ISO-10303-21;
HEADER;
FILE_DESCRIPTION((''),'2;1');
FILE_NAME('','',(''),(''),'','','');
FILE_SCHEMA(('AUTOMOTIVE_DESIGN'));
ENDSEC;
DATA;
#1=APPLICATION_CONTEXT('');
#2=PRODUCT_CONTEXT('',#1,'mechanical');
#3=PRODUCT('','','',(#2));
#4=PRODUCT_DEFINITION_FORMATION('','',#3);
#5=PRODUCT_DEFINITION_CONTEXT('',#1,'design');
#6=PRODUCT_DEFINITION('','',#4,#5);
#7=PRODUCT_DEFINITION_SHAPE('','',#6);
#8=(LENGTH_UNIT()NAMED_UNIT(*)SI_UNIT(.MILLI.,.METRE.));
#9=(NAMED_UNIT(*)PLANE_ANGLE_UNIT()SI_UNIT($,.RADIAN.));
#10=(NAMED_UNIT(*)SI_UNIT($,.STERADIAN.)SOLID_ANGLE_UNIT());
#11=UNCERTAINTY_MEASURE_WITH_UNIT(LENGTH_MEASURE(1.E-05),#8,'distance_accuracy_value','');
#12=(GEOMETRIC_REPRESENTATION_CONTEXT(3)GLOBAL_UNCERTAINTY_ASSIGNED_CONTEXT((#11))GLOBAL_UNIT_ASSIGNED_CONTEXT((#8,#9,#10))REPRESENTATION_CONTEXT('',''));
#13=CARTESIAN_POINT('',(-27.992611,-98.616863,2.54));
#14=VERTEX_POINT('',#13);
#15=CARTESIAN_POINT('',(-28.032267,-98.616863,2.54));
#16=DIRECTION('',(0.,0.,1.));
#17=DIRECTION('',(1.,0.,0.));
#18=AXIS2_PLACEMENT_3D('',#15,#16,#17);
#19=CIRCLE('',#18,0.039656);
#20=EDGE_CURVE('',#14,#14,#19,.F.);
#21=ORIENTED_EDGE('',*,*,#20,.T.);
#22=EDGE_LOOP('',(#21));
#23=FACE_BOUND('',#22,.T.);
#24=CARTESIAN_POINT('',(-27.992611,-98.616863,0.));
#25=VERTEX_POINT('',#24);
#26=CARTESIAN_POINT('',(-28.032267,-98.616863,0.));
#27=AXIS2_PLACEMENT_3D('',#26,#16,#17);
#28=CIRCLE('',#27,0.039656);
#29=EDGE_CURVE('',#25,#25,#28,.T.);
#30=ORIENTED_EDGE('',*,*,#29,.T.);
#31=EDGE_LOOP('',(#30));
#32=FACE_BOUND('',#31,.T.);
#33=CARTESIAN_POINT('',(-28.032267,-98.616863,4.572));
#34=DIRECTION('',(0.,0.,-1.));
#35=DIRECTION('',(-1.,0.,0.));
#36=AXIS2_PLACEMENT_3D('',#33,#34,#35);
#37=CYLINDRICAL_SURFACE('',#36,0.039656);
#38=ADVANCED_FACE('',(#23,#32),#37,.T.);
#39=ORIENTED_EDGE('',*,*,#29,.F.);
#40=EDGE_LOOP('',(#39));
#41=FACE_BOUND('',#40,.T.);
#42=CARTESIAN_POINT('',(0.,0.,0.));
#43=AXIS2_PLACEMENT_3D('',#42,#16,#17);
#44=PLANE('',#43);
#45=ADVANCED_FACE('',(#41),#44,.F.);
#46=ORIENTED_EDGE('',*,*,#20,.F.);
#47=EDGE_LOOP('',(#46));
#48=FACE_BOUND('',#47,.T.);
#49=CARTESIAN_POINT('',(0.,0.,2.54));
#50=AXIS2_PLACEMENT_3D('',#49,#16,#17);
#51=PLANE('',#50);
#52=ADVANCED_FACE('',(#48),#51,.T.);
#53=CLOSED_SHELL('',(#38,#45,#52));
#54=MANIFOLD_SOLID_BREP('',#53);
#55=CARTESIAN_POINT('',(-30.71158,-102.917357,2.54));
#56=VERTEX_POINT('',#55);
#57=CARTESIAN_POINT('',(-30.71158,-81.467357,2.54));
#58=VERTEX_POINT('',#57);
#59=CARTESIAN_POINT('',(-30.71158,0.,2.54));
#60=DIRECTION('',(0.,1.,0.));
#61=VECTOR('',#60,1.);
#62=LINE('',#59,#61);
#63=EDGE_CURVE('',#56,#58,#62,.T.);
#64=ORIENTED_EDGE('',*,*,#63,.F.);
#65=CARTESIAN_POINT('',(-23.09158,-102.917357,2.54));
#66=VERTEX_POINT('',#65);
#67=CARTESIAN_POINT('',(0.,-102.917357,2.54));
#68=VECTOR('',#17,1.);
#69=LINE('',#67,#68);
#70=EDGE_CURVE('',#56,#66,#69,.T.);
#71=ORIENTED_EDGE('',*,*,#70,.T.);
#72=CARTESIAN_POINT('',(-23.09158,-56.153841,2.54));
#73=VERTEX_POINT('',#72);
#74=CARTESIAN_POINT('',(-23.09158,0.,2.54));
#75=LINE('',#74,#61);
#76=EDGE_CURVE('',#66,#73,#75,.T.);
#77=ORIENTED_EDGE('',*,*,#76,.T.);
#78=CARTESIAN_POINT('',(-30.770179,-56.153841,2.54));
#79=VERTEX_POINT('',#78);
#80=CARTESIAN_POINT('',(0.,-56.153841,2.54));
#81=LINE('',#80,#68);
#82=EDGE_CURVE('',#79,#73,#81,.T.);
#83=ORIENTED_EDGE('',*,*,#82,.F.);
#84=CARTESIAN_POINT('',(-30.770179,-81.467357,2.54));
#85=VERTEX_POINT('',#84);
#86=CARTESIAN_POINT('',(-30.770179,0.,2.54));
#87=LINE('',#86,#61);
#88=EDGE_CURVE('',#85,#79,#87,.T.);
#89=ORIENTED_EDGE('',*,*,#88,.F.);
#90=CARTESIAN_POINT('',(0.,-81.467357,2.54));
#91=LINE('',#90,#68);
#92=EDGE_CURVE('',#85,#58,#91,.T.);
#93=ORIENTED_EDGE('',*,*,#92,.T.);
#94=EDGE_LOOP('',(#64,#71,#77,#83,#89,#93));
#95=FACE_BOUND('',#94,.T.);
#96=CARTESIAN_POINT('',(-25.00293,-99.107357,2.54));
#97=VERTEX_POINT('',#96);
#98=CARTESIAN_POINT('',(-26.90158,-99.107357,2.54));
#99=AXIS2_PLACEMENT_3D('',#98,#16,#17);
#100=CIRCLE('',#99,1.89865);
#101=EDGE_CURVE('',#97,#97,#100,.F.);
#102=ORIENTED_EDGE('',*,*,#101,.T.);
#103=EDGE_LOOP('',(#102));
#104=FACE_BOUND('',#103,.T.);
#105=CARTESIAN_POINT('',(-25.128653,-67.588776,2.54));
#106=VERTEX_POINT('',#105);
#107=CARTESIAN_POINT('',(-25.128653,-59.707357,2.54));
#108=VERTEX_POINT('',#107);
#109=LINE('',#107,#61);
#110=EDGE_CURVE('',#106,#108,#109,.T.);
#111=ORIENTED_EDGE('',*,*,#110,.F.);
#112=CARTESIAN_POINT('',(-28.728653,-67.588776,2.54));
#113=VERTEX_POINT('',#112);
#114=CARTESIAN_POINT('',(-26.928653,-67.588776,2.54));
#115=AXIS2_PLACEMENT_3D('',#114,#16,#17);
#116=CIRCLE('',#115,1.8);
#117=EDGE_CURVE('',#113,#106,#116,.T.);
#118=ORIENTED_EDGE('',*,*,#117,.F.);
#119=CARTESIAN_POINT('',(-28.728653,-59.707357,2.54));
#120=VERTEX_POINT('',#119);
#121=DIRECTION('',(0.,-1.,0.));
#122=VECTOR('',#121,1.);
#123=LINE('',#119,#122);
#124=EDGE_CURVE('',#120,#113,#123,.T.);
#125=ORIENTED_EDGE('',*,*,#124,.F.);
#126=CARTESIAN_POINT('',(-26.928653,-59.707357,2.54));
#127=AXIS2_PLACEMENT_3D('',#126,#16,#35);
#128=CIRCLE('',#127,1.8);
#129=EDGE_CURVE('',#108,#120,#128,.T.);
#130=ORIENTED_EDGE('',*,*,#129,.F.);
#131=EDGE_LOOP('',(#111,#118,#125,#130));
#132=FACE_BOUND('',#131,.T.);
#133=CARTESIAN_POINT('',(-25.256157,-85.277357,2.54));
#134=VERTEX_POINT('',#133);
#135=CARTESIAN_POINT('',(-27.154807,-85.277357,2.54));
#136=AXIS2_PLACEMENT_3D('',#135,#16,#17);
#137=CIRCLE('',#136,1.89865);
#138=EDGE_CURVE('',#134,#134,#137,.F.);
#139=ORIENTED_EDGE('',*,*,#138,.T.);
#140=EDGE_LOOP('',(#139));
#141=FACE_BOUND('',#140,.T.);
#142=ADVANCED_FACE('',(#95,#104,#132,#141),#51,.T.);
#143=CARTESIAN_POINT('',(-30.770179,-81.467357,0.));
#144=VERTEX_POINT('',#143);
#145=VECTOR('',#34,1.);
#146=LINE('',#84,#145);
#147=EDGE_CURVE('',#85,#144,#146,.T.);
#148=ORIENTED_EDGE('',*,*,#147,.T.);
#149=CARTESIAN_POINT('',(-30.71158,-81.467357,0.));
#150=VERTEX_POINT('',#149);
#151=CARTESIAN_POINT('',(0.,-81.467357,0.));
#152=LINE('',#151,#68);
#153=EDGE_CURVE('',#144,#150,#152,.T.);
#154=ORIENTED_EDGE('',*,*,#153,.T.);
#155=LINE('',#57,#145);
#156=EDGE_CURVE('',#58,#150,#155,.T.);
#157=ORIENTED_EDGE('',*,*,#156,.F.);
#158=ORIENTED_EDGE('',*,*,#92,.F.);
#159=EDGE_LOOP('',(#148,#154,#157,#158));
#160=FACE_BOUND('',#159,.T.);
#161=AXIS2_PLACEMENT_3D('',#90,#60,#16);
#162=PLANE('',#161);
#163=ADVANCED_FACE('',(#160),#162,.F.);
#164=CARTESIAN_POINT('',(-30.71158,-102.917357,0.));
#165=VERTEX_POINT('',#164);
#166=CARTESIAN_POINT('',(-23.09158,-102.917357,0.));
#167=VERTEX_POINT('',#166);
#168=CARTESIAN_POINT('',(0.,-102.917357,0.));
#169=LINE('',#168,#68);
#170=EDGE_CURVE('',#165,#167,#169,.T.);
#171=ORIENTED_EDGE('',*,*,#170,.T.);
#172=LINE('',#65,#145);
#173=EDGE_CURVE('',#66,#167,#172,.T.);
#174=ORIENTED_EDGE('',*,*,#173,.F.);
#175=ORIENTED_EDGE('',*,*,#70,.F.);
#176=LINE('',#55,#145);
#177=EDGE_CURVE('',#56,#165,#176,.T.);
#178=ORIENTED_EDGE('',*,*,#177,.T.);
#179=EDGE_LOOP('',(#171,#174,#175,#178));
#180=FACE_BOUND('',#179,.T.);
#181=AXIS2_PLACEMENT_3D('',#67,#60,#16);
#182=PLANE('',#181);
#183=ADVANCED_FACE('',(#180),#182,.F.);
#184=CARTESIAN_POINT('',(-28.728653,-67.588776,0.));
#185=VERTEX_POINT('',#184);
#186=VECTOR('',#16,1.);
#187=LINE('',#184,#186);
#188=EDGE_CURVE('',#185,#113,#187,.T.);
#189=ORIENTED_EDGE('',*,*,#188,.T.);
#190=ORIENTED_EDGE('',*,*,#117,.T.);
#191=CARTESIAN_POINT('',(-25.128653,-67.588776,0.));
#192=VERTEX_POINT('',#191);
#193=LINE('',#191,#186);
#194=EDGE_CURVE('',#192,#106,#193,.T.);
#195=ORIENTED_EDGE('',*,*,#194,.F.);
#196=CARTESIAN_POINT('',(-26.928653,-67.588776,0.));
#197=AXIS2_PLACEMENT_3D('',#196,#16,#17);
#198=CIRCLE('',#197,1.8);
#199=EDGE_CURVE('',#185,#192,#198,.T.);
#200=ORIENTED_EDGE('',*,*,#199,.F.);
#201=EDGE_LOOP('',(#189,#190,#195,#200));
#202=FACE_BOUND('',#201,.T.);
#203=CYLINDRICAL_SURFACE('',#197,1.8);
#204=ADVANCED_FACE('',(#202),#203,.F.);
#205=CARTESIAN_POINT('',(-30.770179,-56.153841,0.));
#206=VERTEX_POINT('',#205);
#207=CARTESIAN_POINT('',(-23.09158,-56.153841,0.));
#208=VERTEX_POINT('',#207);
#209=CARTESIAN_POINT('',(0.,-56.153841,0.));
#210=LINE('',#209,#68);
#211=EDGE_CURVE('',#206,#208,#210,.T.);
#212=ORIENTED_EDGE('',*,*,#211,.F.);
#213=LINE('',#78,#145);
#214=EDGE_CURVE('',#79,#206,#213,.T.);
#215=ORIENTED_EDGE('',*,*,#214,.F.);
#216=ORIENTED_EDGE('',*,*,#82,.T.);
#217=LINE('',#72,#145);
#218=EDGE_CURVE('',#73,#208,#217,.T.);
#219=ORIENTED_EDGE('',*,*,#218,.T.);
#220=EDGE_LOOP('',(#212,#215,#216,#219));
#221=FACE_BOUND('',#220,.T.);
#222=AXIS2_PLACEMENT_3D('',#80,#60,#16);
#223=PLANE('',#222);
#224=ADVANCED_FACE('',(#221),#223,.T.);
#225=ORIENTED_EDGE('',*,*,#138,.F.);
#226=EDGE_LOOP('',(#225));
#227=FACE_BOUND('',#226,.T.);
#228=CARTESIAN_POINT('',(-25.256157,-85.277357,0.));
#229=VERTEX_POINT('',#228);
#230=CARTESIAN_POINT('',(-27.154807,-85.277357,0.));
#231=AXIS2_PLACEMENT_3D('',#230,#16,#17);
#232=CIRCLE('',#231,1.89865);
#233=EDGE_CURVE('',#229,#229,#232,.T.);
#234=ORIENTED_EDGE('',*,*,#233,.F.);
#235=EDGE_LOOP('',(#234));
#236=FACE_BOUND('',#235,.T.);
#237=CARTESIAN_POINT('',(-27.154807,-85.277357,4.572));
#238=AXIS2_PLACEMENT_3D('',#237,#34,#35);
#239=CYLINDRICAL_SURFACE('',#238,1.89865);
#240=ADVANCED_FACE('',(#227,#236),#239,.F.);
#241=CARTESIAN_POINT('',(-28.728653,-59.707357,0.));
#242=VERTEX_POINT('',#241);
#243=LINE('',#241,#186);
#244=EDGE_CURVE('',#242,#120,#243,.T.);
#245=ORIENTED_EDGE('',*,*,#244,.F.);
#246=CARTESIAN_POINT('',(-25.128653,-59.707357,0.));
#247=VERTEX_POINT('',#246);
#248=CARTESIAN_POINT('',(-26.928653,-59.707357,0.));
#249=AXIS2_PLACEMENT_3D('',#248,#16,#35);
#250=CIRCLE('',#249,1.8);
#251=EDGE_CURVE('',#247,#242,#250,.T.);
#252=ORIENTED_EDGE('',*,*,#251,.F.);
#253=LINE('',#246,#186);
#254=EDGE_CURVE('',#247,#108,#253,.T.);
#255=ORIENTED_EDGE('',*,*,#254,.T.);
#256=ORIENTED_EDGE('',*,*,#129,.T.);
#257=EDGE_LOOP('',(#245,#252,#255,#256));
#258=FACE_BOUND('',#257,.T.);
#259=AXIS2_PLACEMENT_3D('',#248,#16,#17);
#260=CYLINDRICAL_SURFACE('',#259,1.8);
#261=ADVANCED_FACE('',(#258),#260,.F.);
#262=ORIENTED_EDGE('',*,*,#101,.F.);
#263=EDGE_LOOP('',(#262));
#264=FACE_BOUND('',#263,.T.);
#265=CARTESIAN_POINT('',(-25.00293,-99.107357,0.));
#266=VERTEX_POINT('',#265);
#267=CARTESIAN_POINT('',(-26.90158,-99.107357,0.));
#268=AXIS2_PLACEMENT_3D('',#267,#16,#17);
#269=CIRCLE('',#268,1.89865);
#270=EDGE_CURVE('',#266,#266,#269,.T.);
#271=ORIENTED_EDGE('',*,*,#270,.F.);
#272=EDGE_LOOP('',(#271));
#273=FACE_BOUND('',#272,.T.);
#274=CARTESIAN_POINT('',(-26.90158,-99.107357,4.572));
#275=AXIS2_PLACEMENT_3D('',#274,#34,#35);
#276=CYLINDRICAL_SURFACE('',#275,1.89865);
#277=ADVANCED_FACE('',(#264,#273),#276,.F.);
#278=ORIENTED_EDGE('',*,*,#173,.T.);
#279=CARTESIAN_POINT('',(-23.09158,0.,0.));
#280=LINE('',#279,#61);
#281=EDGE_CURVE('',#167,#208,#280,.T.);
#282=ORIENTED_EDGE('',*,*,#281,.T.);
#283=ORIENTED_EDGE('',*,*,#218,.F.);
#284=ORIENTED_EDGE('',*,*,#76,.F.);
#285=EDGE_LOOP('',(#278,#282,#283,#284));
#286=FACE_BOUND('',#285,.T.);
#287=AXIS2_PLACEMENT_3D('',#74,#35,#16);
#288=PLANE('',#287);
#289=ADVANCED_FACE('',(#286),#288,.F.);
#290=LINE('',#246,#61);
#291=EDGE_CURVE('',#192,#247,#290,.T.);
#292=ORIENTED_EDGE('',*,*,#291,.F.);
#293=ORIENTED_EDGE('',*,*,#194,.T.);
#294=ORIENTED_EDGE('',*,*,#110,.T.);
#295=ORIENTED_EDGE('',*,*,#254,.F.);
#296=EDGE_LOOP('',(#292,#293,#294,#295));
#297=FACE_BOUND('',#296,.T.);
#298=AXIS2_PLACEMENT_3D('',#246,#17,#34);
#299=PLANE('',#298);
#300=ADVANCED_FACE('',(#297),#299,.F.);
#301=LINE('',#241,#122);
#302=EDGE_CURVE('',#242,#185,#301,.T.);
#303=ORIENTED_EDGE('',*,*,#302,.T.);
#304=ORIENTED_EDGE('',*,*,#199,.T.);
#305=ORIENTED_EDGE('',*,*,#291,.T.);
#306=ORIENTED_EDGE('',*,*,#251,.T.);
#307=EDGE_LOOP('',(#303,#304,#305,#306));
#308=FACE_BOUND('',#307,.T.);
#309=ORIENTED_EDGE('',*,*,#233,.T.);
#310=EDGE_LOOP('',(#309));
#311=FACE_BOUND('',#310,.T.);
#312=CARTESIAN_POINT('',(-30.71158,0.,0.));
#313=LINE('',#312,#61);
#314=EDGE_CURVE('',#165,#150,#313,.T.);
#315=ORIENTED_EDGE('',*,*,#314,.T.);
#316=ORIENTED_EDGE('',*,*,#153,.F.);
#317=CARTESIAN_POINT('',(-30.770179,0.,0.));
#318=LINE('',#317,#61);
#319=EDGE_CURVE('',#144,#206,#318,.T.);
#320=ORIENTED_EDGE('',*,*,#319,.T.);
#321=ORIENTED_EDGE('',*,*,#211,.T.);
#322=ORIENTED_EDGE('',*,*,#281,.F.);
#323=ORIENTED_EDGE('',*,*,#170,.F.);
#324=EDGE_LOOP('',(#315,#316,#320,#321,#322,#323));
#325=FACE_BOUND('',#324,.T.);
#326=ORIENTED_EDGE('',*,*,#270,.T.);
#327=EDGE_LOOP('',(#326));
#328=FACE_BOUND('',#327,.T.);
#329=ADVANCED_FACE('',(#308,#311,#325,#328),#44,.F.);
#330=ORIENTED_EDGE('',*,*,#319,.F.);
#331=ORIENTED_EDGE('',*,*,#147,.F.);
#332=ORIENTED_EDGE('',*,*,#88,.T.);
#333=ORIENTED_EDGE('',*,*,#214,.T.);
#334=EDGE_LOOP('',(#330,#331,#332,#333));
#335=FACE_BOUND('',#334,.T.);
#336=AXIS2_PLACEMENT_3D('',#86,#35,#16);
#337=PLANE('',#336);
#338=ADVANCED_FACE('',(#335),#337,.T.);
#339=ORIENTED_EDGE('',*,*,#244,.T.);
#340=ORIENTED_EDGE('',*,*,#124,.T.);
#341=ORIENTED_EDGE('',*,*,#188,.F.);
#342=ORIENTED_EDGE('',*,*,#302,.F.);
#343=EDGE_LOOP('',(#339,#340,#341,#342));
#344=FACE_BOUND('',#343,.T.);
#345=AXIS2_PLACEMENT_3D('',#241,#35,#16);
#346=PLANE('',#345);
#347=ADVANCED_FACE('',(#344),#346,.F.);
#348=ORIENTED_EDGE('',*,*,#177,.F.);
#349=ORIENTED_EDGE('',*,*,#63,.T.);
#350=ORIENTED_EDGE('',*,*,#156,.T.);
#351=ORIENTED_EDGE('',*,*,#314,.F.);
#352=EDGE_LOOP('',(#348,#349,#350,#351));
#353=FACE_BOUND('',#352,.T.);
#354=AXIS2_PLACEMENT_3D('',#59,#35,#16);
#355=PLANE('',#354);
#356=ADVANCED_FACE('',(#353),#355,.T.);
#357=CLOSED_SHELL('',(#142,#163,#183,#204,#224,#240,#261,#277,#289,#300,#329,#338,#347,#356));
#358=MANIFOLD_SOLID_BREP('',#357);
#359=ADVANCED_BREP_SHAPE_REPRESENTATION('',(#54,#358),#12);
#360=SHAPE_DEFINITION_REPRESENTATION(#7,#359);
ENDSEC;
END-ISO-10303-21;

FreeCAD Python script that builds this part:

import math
import FreeCAD as App
import Part
import Sketcher
Q = App.Units.Quantity

doc = App.newDocument("Part")
params = doc.addObject("Spreadsheet::Sheet", "Params")
for row, (alias, value) in enumerate([
    ("sketch1_width", "0.3 in"),
    ("pad1_length", "0.1 in"),
    ("pocket1_length", "0.18 in"),
    ("pocket2_length", "0.1 in"),
], start=1):
    params.set(f"A{row}", alias)
    params.set(f"B{row}", "=" + value)
    params.setAlias(f"B{row}", alias)

body = doc.addObject("PartDesign::Body", "Body")
body.AllowCompound = True

# Sketch on XY plane
sketch1 = body.newObject("Sketcher::SketchObject", "Sketch")
sketch1.AttachmentSupport = (doc.getObject("XY_Plane"), [""])
sketch1.MapMode = "FlatFace"
sketch1.addGeometry(Part.LineSegment(App.Vector(-30.71158, -81.467357, 0), App.Vector(-30.71158, -102.917357, 0)), False)
sketch1.addGeometry(Part.LineSegment(App.Vector(-30.71158, -102.917357, 0), App.Vector(-23.09158, -102.917357, 0)), False)
sketch1.addGeometry(Part.LineSegment(App.Vector(-23.09158, -102.917357, 0), App.Vector(-23.09158, -56.153841, 0)), False)
sketch1.addGeometry(Part.LineSegment(App.Vector(-23.09158, -56.153841, 0), App.Vector(-30.770179, -56.153841, 0)), False)
sketch1.addGeometry(Part.LineSegment(App.Vector(-30.770179, -56.153841, 0), App.Vector(-30.770179, -81.467357, 0)), False)
sketch1.addGeometry(Part.LineSegment(App.Vector(-30.770179, -81.467357, 0), App.Vector(-30.71158, -81.467357, 0)), False)
sketch1.addConstraint(Sketcher.Constraint("Coincident", 0, 2, 1, 1))
sketch1.addConstraint(Sketcher.Constraint("Coincident", 1, 2, 2, 1))
sketch1.addConstraint(Sketcher.Constraint("Coincident", 2, 2, 3, 1))
sketch1.addConstraint(Sketcher.Constraint("Coincident", 3, 2, 4, 1))
sketch1.addConstraint(Sketcher.Constraint("Coincident", 4, 2, 5, 1))
sketch1.addConstraint(Sketcher.Constraint("Coincident", 5, 2, 0, 1))
sketch1.addConstraint(Sketcher.Constraint("Vertical", 0))
sketch1.addConstraint(Sketcher.Constraint("Horizontal", 1))
sketch1.addConstraint(Sketcher.Constraint("Vertical", 2))
sketch1.addConstraint(Sketcher.Constraint("Horizontal", 3))
sketch1.addConstraint(Sketcher.Constraint("Vertical", 4))
sketch1.addConstraint(Sketcher.Constraint("Horizontal", 5))
sketch1.addConstraint(Sketcher.Constraint("DistanceX", 1, 1, 1, 2, Q("0.3 in")))
sketch1.addConstraint(Sketcher.Constraint("DistanceX", 3, 2, 3, 1, 7.678599))
sketch1.addConstraint(Sketcher.Constraint("DistanceY", 0, 2, 0, 1, 21.45))
sketch1.addConstraint(Sketcher.Constraint("DistanceY", 2, 1, 2, 2, 46.763517))
sketch1.addConstraint(Sketcher.Constraint("DistanceX", 0, 2, -1, 1, 30.71158))
sketch1.addConstraint(Sketcher.Constraint("DistanceY", 2, 2, -1, 1, 56.153841))
sketch1.setExpression("Constraints[12]", "Params.sketch1_width")
pad1 = body.newObject("PartDesign::Pad", "Pad")
pad1.Profile = sketch1
pad1.setExpression("Length", "Params.pad1_length")

# Sketch on XY plane
sketch2 = body.newObject("Sketcher::SketchObject", "Sketch001")
sketch2.AttachmentSupport = (doc.getObject("XY_Plane"), [""])
sketch2.MapMode = "FlatFace"
sketch2.addGeometry(Part.Circle(App.Vector(-27.154807, -85.277357, 0), App.Vector(0, 0, 1), 1.89865), False)
sketch2.addGeometry(Part.Circle(App.Vector(0, 0, 0), App.Vector(0, 0, 1), 2.356522), False)
sketch2.addGeometry(Part.Circle(App.Vector(-26.90158, -99.107357, 0), App.Vector(0, 0, 1), 1.89865), False)
sketch2.addGeometry(Part.Circle(App.Vector(-28.032267, -98.616863, 0), App.Vector(0, 0, 1), 0.039656), False)
sketch2.addConstraint(Sketcher.Constraint("Coincident", 1, 3, -1, 1))
sketch2.addConstraint(Sketcher.Constraint("Equal", 0, 2))
sketch2.addConstraint(Sketcher.Constraint("Diameter", 0, Q("0.1495 in")))
sketch2.addConstraint(Sketcher.Constraint("Diameter", 1, 4.713044))
sketch2.addConstraint(Sketcher.Constraint("Diameter", 3, 0.079312))
sketch2.addConstraint(Sketcher.Constraint("DistanceY", 2, 3, 0, 3, 13.83))
sketch2.addConstraint(Sketcher.Constraint("DistanceX", 2, 3, -1, 1, 26.90158))
sketch2.addConstraint(Sketcher.Constraint("DistanceX", 3, 3, 0, 3, 0.87746))
sketch2.addConstraint(Sketcher.Constraint("DistanceX", 0, 3, -1, 1, 27.154807))
sketch2.addConstraint(Sketcher.Constraint("DistanceY", 0, 3, -1, 1, 85.277357))
sketch2.addConstraint(Sketcher.Constraint("DistanceY", 3, 3, -1, 1, 98.616863))
pocket1 = body.newObject("PartDesign::Pocket", "Pocket")
pocket1.Profile = sketch2
pocket1.setExpression("Length", "Params.pocket1_length")
pocket1.Reversed = True

# Sketch on XY plane
sketch3 = body.newObject("Sketcher::SketchObject", "Sketch002")
sketch3.AttachmentSupport = (doc.getObject("XY_Plane"), [""])
sketch3.MapMode = "FlatFace"
sketch3.AttachmentOffset = App.Placement(App.Vector(0, 0, 0.1 * 25.4), App.Rotation())
sketch3.addGeometry(Part.LineSegment(App.Vector(-28.728653, -59.707357, 0), App.Vector(-28.728653, -67.588776, 0)), False)
sketch3.addGeometry(Part.ArcOfCircle(Part.Circle(App.Vector(-26.928653, -67.588776, 0), App.Vector(0, 0, 1), 1.8), math.radians(180), math.radians(360)), False)
sketch3.addGeometry(Part.LineSegment(App.Vector(-25.128653, -67.588776, 0), App.Vector(-25.128653, -59.707357, 0)), False)
sketch3.addGeometry(Part.ArcOfCircle(Part.Circle(App.Vector(-26.928653, -59.707357, 0), App.Vector(0, 0, 1), 1.8), math.radians(0), math.radians(180)), False)
sketch3.addConstraint(Sketcher.Constraint("Tangent", 0, 2, 1, 1))
sketch3.addConstraint(Sketcher.Constraint("Tangent", 1, 2, 2, 1))
sketch3.addConstraint(Sketcher.Constraint("Tangent", 2, 2, 3, 1))
sketch3.addConstraint(Sketcher.Constraint("Tangent", 3, 2, 0, 1))
sketch3.addConstraint(Sketcher.Constraint("Vertical", 0))
sketch3.addConstraint(Sketcher.Constraint("Vertical", 2))
sketch3.addConstraint(Sketcher.Constraint("Radius", 1, 1.8))
sketch3.addConstraint(Sketcher.Constraint("DistanceY", 0, 2, 0, 1, 7.881418))
sketch3.addConstraint(Sketcher.Constraint("DistanceX", 1, 3, -1, 1, 26.928653))
sketch3.addConstraint(Sketcher.Constraint("DistanceY", 1, 3, -1, 1, 67.588776))
pocket2 = body.newObject("PartDesign::Pocket", "Pocket001")
pocket2.Profile = sketch3
pocket2.setExpression("Length", "Params.pocket2_length")

doc.recompute()
